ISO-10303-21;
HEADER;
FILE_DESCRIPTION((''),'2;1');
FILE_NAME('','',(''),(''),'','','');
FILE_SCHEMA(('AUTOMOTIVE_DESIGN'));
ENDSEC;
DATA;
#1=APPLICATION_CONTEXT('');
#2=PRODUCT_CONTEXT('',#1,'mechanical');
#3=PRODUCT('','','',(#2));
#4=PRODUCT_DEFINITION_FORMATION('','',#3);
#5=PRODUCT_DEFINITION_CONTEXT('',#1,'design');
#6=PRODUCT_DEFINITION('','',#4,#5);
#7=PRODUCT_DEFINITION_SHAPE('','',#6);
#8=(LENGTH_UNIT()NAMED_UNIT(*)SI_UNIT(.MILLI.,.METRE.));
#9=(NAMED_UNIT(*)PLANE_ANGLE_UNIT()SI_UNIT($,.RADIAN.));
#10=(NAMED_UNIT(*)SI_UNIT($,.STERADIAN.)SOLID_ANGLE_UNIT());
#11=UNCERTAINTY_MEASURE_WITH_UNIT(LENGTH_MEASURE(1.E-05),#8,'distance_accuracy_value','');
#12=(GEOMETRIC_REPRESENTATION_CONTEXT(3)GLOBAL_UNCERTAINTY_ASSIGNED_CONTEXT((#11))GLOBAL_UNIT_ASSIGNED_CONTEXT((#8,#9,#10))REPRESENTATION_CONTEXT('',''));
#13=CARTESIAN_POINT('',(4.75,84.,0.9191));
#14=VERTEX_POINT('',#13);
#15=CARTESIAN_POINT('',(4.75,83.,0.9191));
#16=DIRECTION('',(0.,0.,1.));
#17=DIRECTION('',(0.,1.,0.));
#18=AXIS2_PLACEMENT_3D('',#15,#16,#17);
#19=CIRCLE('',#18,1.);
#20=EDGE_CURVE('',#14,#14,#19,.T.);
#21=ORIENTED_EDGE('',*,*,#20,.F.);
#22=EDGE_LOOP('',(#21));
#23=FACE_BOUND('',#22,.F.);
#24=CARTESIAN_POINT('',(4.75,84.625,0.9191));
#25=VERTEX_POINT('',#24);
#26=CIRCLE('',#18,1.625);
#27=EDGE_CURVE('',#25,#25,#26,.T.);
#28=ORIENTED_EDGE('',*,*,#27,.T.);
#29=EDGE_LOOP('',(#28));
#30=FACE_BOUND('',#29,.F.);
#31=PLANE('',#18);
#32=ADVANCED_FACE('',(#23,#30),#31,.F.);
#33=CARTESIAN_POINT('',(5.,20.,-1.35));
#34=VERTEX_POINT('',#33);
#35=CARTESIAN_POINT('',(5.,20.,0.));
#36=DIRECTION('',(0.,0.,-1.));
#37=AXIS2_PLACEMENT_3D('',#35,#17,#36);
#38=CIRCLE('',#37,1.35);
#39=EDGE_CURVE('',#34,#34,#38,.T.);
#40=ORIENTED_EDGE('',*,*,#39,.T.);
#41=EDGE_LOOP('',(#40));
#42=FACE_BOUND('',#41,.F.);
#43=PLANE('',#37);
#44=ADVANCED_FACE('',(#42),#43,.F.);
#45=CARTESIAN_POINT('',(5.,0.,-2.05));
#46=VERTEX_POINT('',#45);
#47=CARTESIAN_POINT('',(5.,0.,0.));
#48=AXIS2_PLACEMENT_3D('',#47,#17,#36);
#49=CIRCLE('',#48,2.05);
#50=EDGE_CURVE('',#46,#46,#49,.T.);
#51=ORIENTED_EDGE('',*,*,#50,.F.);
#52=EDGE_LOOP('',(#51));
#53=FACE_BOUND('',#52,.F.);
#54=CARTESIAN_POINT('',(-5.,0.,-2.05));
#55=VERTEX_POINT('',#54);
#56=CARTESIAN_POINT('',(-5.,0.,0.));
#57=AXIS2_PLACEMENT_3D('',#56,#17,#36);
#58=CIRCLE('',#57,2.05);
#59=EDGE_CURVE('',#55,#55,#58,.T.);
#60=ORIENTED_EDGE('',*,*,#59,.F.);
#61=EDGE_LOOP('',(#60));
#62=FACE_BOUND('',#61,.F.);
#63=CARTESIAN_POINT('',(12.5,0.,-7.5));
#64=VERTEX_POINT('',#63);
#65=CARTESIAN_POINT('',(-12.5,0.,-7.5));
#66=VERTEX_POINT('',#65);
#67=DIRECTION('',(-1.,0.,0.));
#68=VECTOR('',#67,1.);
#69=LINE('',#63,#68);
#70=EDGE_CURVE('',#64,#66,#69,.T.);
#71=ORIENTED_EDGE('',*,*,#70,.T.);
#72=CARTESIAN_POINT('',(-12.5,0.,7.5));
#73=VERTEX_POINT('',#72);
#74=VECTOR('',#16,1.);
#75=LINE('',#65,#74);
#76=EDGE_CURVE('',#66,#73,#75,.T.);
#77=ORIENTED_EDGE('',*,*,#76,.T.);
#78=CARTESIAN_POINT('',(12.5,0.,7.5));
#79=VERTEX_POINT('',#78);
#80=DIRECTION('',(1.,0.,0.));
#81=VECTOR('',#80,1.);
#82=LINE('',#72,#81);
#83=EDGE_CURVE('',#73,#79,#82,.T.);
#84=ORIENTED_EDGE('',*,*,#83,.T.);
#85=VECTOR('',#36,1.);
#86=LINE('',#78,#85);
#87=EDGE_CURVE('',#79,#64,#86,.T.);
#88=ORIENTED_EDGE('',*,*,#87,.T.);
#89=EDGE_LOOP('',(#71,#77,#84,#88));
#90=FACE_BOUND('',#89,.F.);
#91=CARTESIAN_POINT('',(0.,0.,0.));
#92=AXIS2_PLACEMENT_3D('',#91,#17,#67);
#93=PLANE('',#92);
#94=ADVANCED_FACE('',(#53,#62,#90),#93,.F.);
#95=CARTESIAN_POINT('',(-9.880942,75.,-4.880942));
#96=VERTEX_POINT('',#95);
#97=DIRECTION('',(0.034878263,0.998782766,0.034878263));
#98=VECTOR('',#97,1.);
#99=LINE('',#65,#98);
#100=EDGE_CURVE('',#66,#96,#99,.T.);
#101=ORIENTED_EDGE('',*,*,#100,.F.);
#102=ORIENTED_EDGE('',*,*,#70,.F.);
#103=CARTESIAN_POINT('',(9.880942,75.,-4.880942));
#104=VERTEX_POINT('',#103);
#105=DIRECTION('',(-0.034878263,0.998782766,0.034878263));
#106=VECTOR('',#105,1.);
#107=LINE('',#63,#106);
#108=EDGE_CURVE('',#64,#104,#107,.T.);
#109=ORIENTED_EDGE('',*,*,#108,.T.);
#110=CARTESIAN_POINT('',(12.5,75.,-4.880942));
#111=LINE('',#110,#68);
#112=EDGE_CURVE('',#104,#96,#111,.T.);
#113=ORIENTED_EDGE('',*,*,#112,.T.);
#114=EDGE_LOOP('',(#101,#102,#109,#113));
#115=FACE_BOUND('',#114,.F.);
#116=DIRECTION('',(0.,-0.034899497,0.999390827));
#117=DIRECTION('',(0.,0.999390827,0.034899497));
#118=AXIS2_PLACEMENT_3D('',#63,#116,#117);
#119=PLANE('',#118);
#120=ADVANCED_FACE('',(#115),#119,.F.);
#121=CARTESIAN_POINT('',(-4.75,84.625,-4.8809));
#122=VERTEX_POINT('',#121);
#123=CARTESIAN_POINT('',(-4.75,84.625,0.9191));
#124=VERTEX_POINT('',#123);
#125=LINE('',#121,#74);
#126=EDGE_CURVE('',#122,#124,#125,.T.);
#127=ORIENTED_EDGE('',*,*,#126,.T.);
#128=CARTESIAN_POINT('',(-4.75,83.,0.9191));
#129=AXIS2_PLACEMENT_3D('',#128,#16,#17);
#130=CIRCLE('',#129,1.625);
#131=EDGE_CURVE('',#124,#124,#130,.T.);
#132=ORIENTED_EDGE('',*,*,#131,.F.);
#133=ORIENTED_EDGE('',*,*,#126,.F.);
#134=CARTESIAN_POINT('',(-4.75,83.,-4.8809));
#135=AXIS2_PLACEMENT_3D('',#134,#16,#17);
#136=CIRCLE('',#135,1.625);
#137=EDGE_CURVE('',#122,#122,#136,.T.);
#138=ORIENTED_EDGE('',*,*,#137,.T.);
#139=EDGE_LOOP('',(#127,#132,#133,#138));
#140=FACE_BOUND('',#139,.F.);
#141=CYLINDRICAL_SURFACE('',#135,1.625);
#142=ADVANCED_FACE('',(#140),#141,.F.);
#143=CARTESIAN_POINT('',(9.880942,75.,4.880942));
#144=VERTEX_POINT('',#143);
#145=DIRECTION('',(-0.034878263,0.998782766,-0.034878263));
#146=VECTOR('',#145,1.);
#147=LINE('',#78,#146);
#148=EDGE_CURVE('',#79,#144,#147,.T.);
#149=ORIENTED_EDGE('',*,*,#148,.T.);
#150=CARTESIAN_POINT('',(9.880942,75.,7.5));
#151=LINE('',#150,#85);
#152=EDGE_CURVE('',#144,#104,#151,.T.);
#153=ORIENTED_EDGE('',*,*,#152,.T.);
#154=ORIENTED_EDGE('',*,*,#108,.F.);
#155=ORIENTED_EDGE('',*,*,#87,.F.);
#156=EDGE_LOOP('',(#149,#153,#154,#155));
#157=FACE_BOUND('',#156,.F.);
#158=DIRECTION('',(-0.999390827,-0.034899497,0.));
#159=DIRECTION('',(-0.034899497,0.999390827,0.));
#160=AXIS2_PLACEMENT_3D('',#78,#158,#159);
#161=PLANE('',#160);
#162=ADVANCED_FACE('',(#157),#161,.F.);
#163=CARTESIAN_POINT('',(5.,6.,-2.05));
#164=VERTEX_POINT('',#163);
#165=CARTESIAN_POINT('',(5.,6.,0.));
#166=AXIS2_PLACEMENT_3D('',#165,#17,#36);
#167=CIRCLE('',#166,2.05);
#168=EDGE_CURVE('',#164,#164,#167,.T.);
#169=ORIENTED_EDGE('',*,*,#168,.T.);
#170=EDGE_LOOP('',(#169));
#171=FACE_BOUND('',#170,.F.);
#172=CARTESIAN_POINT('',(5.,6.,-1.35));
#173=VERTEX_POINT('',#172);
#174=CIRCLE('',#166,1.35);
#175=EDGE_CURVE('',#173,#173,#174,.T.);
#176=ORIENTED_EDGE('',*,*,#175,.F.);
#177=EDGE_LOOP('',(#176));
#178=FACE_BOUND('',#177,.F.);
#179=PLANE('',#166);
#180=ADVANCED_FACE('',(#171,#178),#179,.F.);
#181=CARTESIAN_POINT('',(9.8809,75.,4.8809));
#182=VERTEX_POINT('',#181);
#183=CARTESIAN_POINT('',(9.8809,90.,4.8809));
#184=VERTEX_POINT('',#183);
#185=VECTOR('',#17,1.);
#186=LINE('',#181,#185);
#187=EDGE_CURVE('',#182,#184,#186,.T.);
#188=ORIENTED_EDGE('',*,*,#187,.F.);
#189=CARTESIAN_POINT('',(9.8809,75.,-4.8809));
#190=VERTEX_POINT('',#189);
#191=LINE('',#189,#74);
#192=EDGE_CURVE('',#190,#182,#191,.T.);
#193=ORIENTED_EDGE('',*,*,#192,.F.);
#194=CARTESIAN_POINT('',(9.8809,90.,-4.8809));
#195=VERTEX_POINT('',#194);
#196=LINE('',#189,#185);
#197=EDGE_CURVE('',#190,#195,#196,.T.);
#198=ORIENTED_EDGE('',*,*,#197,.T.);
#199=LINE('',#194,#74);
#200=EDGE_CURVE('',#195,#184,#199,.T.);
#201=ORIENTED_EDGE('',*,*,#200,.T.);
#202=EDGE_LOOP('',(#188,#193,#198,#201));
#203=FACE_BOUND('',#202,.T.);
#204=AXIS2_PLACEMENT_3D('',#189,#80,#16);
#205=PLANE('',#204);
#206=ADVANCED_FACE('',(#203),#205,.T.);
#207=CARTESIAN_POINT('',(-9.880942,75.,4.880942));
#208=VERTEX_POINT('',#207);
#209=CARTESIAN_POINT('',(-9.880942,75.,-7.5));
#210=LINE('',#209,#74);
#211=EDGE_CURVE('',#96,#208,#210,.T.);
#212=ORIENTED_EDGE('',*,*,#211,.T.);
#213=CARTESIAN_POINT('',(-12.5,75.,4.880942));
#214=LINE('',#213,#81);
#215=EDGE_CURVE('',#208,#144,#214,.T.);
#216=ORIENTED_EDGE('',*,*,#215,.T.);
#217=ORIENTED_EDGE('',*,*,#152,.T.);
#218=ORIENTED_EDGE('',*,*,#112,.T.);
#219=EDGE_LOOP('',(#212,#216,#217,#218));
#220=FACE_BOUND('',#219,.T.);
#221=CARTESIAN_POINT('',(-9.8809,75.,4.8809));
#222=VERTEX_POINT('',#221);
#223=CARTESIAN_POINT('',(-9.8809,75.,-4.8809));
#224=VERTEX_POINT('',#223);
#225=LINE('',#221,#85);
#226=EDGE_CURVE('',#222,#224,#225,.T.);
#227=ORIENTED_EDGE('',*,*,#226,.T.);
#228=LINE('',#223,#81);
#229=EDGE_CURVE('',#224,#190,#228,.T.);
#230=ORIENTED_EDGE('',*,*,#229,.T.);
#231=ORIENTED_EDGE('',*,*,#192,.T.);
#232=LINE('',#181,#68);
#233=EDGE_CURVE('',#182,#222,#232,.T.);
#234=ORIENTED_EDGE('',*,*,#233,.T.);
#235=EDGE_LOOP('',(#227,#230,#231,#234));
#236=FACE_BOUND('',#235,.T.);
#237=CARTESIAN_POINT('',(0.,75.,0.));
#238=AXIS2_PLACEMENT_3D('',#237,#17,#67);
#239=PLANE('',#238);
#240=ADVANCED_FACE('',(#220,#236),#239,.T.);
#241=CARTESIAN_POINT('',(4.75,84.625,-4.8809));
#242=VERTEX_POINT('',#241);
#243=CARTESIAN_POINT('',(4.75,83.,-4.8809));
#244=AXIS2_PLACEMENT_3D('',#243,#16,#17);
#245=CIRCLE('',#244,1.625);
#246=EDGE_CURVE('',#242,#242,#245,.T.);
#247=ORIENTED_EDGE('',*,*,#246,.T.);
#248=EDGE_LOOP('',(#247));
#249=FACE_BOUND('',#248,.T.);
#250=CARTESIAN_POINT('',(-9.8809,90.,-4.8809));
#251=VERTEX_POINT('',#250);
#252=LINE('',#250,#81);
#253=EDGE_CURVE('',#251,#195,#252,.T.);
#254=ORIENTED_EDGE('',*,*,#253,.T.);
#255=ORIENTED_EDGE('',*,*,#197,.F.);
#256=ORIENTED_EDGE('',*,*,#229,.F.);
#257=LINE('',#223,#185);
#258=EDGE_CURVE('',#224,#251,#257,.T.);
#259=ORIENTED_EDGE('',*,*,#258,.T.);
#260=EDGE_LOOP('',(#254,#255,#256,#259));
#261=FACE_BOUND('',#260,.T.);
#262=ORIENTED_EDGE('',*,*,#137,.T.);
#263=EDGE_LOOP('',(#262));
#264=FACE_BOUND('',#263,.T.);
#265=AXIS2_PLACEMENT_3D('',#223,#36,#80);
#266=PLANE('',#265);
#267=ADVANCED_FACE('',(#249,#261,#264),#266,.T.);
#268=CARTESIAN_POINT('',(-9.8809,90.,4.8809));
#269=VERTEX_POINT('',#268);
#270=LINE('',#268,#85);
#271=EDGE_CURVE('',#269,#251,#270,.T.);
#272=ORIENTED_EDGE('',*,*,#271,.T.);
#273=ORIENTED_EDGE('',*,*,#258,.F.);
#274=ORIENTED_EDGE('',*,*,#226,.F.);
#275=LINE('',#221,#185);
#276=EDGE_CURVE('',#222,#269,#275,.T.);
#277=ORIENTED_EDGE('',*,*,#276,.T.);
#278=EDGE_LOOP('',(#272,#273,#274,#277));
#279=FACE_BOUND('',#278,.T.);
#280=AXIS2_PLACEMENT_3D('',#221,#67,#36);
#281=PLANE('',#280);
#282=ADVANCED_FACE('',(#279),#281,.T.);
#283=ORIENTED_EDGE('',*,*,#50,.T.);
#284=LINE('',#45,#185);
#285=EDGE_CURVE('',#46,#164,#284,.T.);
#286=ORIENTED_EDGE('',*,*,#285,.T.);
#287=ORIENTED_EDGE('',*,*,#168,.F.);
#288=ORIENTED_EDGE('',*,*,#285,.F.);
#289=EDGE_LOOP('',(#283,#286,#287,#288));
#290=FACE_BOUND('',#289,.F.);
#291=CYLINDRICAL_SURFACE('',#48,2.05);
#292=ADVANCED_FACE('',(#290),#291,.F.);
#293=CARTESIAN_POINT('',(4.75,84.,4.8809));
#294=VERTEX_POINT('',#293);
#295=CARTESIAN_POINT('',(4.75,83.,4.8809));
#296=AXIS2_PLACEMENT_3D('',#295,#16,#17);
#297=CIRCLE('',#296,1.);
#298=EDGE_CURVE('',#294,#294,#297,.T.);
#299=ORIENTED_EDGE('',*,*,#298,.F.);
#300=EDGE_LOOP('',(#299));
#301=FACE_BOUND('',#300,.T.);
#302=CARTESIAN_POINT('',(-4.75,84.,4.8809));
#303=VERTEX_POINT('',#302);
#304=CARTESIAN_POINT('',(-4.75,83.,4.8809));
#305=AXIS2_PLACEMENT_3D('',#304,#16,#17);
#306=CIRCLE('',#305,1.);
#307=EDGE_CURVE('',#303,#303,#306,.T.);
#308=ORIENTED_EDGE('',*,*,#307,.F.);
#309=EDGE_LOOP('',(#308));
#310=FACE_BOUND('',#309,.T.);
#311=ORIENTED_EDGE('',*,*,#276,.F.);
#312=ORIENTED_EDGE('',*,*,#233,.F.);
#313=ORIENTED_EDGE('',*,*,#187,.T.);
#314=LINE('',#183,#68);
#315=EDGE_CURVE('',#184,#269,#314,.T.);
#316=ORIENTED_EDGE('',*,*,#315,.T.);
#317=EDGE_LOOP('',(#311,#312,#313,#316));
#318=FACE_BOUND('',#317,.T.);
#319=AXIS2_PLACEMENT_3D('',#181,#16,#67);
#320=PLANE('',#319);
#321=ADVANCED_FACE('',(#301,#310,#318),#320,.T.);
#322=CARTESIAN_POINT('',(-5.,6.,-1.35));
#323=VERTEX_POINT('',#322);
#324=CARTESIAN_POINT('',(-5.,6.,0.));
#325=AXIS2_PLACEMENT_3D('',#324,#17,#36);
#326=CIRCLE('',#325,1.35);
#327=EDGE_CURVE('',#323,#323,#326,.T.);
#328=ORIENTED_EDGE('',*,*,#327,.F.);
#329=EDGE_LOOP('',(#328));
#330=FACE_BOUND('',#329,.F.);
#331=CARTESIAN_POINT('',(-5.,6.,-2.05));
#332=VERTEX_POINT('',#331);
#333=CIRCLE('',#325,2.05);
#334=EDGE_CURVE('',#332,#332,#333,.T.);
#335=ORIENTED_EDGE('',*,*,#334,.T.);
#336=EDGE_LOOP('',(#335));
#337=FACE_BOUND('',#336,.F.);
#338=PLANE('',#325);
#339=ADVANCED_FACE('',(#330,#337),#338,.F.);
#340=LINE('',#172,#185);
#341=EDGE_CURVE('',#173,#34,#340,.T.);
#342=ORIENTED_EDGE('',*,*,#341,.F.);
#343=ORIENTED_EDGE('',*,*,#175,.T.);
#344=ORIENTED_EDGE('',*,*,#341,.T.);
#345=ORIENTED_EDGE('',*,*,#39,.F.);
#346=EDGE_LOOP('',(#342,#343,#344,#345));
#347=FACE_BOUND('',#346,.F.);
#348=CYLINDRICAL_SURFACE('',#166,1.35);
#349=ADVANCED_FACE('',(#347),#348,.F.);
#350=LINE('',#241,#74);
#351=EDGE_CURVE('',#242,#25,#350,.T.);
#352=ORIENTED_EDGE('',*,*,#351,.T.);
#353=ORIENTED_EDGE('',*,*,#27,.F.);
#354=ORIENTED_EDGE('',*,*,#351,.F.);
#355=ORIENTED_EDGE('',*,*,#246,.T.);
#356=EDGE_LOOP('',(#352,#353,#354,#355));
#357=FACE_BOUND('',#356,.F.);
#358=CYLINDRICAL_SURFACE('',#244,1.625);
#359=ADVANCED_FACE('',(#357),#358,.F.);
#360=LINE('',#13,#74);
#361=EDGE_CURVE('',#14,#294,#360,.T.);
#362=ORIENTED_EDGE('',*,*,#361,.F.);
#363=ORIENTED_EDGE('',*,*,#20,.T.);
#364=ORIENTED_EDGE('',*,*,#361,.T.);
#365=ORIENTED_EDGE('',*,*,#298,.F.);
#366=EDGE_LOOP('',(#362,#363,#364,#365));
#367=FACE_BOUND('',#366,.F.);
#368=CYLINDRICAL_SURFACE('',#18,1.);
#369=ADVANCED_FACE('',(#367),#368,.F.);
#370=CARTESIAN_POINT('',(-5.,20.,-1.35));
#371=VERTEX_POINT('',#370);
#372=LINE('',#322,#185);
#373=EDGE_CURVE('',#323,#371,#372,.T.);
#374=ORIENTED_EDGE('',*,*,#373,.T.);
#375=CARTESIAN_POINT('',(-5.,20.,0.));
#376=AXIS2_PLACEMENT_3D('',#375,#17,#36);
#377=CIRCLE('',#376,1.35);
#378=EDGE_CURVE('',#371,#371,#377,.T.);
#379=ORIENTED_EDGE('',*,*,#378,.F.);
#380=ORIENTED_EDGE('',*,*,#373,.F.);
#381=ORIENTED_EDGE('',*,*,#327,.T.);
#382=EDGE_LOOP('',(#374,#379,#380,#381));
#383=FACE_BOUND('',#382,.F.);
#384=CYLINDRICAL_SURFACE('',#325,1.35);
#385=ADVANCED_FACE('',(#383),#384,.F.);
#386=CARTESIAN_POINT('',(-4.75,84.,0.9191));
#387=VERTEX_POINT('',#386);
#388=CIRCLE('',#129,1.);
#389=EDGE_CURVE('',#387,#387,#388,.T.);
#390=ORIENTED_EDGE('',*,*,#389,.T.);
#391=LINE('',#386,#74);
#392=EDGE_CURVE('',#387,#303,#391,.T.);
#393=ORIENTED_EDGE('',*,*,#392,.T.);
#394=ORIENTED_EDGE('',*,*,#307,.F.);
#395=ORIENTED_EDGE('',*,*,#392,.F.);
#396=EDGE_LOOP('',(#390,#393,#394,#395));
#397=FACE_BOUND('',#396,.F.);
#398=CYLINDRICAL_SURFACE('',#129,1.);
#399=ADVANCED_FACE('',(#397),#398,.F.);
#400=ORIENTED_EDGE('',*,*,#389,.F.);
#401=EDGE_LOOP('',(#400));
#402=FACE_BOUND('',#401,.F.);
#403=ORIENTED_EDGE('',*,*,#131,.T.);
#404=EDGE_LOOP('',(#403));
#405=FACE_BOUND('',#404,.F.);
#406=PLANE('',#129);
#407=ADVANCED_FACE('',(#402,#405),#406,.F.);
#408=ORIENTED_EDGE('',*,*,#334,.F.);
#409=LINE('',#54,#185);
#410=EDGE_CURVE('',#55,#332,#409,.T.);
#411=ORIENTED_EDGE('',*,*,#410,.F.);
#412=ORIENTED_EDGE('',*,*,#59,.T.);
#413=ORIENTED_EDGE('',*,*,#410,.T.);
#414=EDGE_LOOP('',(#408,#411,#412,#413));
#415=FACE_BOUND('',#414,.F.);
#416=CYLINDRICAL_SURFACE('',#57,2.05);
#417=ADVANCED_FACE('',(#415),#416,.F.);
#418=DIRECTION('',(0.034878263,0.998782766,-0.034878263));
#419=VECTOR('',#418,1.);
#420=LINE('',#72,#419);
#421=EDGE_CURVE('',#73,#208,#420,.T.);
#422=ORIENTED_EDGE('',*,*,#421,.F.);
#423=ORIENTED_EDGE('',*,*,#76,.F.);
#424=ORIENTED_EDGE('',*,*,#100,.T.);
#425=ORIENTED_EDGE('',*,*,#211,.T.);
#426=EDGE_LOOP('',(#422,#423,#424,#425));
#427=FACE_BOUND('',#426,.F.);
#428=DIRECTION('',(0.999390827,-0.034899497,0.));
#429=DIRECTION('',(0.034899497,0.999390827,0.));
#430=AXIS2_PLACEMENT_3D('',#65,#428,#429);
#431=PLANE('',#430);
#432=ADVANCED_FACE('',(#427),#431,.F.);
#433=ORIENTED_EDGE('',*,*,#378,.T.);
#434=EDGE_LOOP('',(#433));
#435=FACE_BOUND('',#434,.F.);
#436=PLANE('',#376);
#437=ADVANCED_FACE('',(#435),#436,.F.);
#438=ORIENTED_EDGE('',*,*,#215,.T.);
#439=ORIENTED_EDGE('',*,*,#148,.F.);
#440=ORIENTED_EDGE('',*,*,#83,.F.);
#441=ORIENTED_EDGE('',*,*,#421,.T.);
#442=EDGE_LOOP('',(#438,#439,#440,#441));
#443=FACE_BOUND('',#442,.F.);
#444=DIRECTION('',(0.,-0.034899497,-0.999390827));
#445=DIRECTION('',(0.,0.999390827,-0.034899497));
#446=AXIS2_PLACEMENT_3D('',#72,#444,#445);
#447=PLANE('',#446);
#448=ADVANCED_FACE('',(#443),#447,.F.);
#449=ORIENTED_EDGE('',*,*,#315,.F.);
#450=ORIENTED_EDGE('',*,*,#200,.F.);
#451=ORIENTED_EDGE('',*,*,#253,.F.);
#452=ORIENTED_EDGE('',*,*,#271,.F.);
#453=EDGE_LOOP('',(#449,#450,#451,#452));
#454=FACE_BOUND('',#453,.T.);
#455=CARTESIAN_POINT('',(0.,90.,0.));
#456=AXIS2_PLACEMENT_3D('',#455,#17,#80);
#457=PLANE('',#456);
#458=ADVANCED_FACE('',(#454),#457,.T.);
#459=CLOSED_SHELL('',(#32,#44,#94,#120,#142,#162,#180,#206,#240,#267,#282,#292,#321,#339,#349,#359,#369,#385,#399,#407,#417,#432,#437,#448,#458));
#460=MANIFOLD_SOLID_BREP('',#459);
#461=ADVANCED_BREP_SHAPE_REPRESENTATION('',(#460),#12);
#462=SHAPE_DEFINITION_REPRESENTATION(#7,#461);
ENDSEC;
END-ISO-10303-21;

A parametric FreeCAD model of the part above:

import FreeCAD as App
import Part
import Sketcher
from FreeCAD import Vector

doc = App.newDocument("Part")
body = doc.addObject("PartDesign::Body", "Body")

sketch1 = doc.addObject("Sketcher::SketchObject", "Sketch")
body.addObject(sketch1)
sketch1.AttachmentSupport = (doc.XZ_Plane, [""])
sketch1.MapMode = "FlatFace"
sketch1.addGeometry([
    Part.LineSegment(Vector(-12, -8, 0), Vector(-12, 8, 0)),
    Part.LineSegment(Vector(-12, 8, 0), Vector(12, 8, 0)),
    Part.LineSegment(Vector(12, 8, 0), Vector(12, -8, 0)),
    Part.LineSegment(Vector(12, -8, 0), Vector(-12, -8, 0)),
], False)
sketch1.addConstraint([
    Sketcher.Constraint("Coincident", 0, 2, 1, 1),
    Sketcher.Constraint("Coincident", 1, 2, 2, 1),
    Sketcher.Constraint("Coincident", 2, 2, 3, 1),
    Sketcher.Constraint("Coincident", 3, 2, 0, 1),
    Sketcher.Constraint("Vertical", 0),
    Sketcher.Constraint("Horizontal", 1),
    Sketcher.Constraint("Vertical", 2),
    Sketcher.Constraint("Horizontal", 3),
    Sketcher.Constraint("Symmetric", 0, 2, 2, 2, -1, 1),
    Sketcher.Constraint("DistanceX", 1, 1, 1, 2, 25.0),
    Sketcher.Constraint("DistanceY", 0, 1, 0, 2, 15.0),
])
pad1 = doc.addObject("PartDesign::Pad", "Pad")
body.addObject(pad1)
pad1.Profile = sketch1
pad1.Length = 75
pad1.Reversed = True
pad1.TaperAngle = -2

sketch2 = doc.addObject("Sketcher::SketchObject", "Sketch001")
body.addObject(sketch2)
sketch2.AttachmentSupport = (doc.XZ_Plane, [""])
sketch2.MapMode = "FlatFace"
sketch2.AttachmentOffset = App.Placement(Vector(0, 0, -75), App.Rotation())
sketch2.addGeometry([
    Part.LineSegment(Vector(-10, 5, 0), Vector(10, 5, 0)),
    Part.LineSegment(Vector(10, 5, 0), Vector(10, -5, 0)),
    Part.LineSegment(Vector(10, -5, 0), Vector(-10, -5, 0)),
    Part.LineSegment(Vector(-10, -5, 0), Vector(-10, 5, 0)),
], False)
sketch2.addConstraint([
    Sketcher.Constraint("Coincident", 0, 2, 1, 1),
    Sketcher.Constraint("Coincident", 1, 2, 2, 1),
    Sketcher.Constraint("Coincident", 2, 2, 3, 1),
    Sketcher.Constraint("Coincident", 3, 2, 0, 1),
    Sketcher.Constraint("Horizontal", 0),
    Sketcher.Constraint("Vertical", 1),
    Sketcher.Constraint("Horizontal", 2),
    Sketcher.Constraint("Vertical", 3),
    Sketcher.Constraint("Symmetric", 0, 2, 2, 2, -1, 1),
    Sketcher.Constraint("DistanceX", 0, 1, 0, 2, 19.7618),
    Sketcher.Constraint("DistanceY", 1, 2, 1, 1, 9.7618),
])
pad2 = doc.addObject("PartDesign::Pad", "Pad001")
body.addObject(pad2)
pad2.Profile = sketch2
pad2.Length = 15
pad2.Reversed = True

sketch3 = doc.addObject("Sketcher::SketchObject", "Sketch002")
body.addObject(sketch3)
sketch3.AttachmentSupport = (doc.XY_Plane, [""])
sketch3.MapMode = "FlatFace"
sketch3.AttachmentOffset = App.Placement(Vector(0, 0, -4.8809), App.Rotation())
sketch3.addGeometry([
    Part.Circle(Vector(4.8, 83, 0), Vector(0, 0, 1), 1),
    Part.Circle(Vector(-4.8, 83, 0), Vector(0, 0, 1), 1),
], False)
sketch3.addConstraint([
    Sketcher.Constraint("Equal", 0, 1),
    Sketcher.Constraint("Symmetric", 0, 3, 1, 3, -2),
    Sketcher.Constraint("Diameter", 0, 2.0),
    Sketcher.Constraint("DistanceY", -1, 1, 0, 3, 83.0),
    Sketcher.Constraint("DistanceX", 1, 3, 0, 3, 9.5),
])
doc.recompute()
hole = doc.addObject("PartDesign::Hole", "Hole")
body.addObject(hole)
hole.Profile = sketch3
hole.ThreadType = "None"
hole.Diameter = 2
hole.DepthType = "ThroughAll"
hole.HoleCutType = "Counterbore"
hole.HoleCutDiameter = 3.25
hole.HoleCutDepth = 5.8
hole.Reversed = True

sketch4 = doc.addObject("Sketcher::SketchObject", "Sketch003")
body.addObject(sketch4)
sketch4.AttachmentSupport = (doc.XZ_Plane, [""])
sketch4.MapMode = "FlatFace"
sketch4.addGeometry([
    Part.Circle(Vector(5, 0, 0), Vector(0, 0, 1), 1.4),
    Part.Circle(Vector(-5, 0, 0), Vector(0, 0, 1), 1.4),
], False)
sketch4.addConstraint([
    Sketcher.Constraint("Equal", 0, 1),
    Sketcher.Constraint("Symmetric", 0, 3, 1, 3, -1, 1),
    Sketcher.Constraint("PointOnObject", 0, 3, -1),
    Sketcher.Constraint("Diameter", 0, 2.7),
    Sketcher.Constraint("DistanceX", -1, 1, 0, 3, 5.0),
])
doc.recompute()
hole2 = doc.addObject("PartDesign::Hole", "Hole001")
body.addObject(hole2)
hole2.Profile = sketch4
hole2.ThreadType = "None"
hole2.Diameter = 2.7
hole2.DepthType = "Dimension"
hole2.Depth = 20
hole2.DrillPoint = "Flat"
hole2.HoleCutType = "Counterbore"
hole2.HoleCutDiameter = 4.1
hole2.HoleCutDepth = 6

doc.recompute()
